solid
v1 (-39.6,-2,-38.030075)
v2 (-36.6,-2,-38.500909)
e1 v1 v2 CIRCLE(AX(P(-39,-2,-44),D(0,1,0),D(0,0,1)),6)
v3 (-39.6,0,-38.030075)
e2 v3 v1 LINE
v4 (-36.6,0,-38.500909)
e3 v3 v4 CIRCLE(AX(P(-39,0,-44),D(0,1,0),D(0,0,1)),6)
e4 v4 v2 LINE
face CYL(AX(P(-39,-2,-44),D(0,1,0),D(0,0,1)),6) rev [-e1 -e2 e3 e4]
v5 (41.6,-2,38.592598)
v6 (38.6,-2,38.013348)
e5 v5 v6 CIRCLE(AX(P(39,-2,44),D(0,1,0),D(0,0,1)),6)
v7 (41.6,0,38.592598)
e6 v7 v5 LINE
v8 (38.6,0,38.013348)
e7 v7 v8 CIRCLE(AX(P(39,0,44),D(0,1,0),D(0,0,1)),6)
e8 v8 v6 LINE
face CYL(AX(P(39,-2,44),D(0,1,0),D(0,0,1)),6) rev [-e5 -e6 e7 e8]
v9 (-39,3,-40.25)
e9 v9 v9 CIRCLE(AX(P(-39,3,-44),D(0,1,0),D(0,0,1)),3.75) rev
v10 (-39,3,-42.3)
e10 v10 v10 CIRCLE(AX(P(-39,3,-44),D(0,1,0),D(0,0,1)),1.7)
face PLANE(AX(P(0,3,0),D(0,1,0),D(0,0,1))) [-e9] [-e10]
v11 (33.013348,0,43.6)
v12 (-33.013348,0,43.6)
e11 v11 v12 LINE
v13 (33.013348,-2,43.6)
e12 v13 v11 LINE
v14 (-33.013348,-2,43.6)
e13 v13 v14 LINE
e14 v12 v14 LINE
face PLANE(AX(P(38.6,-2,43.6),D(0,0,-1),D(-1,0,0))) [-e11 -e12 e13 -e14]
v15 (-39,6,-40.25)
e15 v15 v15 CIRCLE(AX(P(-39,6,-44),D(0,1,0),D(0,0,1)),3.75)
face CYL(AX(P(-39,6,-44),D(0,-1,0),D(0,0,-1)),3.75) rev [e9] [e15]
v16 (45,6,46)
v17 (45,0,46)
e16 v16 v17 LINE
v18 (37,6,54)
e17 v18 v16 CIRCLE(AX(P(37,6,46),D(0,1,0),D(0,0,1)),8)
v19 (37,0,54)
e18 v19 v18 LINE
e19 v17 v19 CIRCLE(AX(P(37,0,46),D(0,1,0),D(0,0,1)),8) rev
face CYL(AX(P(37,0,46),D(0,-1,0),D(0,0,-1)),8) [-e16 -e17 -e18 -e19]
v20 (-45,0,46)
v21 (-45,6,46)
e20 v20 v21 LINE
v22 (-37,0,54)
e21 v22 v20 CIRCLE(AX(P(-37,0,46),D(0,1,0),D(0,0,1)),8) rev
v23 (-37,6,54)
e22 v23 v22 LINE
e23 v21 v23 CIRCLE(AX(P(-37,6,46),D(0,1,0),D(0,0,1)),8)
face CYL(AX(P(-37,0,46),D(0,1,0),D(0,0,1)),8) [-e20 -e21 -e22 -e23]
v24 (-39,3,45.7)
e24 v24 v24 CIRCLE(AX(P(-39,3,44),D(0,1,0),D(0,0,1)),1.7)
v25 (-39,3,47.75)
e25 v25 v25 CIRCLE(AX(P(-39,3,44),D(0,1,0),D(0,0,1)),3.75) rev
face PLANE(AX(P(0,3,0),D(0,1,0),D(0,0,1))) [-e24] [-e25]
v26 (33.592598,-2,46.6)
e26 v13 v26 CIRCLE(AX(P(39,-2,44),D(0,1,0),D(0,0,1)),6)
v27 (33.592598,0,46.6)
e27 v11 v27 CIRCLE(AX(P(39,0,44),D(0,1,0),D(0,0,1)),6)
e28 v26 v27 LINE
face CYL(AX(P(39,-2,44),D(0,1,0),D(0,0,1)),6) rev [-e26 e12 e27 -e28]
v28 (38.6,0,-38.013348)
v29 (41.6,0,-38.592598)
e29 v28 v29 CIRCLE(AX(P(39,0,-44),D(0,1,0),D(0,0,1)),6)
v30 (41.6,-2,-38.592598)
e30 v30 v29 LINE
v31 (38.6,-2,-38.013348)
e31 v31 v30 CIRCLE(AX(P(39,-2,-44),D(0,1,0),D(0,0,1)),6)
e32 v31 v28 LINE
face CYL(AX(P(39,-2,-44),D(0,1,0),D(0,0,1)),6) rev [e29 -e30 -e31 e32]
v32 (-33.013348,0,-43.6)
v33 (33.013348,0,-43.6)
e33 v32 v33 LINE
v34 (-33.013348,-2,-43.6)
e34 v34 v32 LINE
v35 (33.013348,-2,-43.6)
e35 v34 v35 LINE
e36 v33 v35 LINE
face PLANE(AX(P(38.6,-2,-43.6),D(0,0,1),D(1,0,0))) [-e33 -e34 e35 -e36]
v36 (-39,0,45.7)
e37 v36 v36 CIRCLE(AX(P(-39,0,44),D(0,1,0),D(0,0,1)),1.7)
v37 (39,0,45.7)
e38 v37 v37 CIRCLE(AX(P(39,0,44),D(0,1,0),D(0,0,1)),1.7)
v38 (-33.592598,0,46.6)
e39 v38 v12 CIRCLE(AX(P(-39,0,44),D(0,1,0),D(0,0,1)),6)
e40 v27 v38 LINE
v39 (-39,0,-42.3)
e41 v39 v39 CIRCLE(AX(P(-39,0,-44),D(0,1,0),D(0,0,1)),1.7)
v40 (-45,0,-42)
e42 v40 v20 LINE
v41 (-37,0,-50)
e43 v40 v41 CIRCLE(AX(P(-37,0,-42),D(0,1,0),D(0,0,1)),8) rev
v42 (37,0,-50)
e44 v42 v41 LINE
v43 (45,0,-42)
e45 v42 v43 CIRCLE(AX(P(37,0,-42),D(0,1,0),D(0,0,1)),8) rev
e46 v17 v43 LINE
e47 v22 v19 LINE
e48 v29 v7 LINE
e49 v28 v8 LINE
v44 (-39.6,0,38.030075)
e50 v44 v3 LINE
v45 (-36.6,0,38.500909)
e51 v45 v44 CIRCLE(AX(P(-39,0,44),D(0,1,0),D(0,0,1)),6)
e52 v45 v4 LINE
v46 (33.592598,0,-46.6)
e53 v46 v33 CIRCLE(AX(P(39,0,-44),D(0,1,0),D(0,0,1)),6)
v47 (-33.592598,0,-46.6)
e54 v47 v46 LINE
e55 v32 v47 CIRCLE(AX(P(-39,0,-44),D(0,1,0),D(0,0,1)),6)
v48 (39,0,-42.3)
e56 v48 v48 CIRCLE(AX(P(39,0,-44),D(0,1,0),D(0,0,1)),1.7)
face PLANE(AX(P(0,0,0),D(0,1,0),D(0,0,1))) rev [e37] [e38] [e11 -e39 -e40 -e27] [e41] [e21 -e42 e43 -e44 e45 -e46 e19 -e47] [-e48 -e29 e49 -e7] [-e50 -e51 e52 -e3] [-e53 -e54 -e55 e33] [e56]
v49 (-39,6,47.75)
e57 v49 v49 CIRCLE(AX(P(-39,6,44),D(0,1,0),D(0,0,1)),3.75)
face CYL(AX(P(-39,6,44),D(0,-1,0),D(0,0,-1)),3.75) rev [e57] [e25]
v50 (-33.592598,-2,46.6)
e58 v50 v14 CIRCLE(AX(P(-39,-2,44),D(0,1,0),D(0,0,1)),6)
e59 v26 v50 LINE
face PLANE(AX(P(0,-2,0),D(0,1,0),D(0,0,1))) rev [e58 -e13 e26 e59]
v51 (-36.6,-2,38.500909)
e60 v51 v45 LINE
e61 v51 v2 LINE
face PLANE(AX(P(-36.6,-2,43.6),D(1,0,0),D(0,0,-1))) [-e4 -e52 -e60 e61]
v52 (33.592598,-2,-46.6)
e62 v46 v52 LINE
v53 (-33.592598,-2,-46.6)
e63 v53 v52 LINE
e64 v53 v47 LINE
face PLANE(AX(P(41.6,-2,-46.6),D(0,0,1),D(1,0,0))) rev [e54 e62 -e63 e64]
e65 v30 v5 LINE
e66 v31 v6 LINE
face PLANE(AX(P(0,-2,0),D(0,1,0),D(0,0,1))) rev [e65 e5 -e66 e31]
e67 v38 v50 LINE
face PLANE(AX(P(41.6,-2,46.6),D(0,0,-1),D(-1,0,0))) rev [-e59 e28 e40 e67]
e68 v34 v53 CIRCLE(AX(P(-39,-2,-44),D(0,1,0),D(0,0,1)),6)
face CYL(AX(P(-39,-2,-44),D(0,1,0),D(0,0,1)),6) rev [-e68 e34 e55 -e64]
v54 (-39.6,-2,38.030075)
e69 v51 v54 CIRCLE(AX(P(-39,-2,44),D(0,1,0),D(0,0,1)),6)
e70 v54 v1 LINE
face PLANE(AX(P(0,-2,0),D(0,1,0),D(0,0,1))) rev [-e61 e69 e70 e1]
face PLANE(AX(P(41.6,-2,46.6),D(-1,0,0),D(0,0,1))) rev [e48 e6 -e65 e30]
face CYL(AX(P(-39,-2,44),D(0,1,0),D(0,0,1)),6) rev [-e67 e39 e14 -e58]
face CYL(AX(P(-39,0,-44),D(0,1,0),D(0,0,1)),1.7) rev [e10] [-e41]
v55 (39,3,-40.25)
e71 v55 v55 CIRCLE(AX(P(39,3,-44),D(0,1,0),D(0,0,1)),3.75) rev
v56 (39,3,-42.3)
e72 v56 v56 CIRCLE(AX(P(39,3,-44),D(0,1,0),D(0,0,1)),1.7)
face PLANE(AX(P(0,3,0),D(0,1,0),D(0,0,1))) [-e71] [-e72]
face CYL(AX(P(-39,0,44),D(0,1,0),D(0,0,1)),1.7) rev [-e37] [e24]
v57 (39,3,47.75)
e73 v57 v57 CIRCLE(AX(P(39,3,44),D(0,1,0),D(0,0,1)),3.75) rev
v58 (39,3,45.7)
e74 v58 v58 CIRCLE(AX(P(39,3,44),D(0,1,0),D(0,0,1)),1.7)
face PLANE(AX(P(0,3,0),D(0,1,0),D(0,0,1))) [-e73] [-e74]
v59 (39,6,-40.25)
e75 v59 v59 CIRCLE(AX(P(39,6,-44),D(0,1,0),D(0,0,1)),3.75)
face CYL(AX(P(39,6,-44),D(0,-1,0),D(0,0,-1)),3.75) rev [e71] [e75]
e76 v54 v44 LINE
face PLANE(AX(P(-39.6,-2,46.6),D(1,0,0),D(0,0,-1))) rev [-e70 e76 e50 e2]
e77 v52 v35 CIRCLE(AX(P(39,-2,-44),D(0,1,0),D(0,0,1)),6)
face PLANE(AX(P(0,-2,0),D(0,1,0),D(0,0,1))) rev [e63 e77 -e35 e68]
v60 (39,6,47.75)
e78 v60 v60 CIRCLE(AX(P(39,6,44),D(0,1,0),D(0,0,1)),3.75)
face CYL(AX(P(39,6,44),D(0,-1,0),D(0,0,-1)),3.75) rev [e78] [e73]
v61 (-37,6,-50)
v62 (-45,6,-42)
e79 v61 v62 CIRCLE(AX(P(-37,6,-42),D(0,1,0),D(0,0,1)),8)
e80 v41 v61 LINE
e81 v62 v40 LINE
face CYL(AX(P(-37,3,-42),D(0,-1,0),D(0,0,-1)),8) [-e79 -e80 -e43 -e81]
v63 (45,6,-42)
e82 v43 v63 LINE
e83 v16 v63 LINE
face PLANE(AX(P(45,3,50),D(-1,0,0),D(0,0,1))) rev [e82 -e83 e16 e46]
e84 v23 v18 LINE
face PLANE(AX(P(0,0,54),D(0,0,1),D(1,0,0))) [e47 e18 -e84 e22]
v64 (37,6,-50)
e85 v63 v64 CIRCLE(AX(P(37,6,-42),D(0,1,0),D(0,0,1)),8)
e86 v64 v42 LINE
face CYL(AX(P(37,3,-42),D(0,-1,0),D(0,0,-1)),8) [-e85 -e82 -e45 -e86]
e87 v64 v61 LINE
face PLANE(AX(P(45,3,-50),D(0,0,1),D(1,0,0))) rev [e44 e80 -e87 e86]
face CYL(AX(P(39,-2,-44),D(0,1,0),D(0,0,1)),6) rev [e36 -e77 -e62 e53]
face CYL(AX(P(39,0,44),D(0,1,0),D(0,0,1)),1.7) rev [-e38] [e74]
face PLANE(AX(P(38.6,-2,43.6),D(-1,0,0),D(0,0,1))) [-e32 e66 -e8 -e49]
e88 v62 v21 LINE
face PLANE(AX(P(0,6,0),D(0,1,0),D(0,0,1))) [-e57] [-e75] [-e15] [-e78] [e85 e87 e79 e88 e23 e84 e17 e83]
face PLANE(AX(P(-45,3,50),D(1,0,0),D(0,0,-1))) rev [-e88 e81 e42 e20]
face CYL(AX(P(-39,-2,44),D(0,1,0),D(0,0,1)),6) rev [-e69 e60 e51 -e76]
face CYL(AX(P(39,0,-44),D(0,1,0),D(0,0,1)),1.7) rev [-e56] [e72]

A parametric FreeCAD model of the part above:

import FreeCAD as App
import Part
import Sketcher
from FreeCAD import Vector


def edges_at(feature, points):
    """Names of the edges that pass closest to the given points."""
    edges = feature.Shape.Edges
    near = lambda p: min(range(len(edges)), key=lambda i: edges[i].distToShape(Part.Vertex(*p))[0])
    return sorted({f"Edge{near(p) + 1}" for p in points})

doc = App.newDocument("Part")
body = doc.addObject("PartDesign::Body", "Body")

sketch1 = doc.addObject("Sketcher::SketchObject", "Sketch")
body.addObject(sketch1)
sketch1.AttachmentSupport = (doc.XZ_Plane, [""])
sketch1.MapMode = "FlatFace"
sketch1.addGeometry(Part.LineSegment(Vector(-45, -50, 0), Vector(-45, 50, 0)), False)
sketch1.addGeometry(Part.LineSegment(Vector(-45, 50, 0), Vector(45, 50, 0)), False)
sketch1.addGeometry(Part.LineSegment(Vector(45, 50, 0), Vector(45, -50, 0)), False)
sketch1.addGeometry(Part.LineSegment(Vector(45, -50, 0), Vector(-45, -50, 0)), False)
sketch1.addConstraint(Sketcher.Constraint("Coincident", 0, 2, 1, 1))
sketch1.addConstraint(Sketcher.Constraint("Coincident", 1, 2, 2, 1))
sketch1.addConstraint(Sketcher.Constraint("Coincident", 2, 2, 3, 1))
sketch1.addConstraint(Sketcher.Constraint("Coincident", 3, 2, 0, 1))
sketch1.addConstraint(Sketcher.Constraint("Vertical", 0))
sketch1.addConstraint(Sketcher.Constraint("Horizontal", 1))
sketch1.addConstraint(Sketcher.Constraint("Vertical", 2))
sketch1.addConstraint(Sketcher.Constraint("Horizontal", 3))
sketch1.addConstraint(Sketcher.Constraint("Symmetric", 0, 2, 2, 2, -1, 1))
sketch1.addConstraint(Sketcher.Constraint("DistanceX", 1, 1, 1, 2, 90.0))
sketch1.addConstraint(Sketcher.Constraint("DistanceY", 0, 1, 0, 2, 100.0))
pad1 = doc.addObject("PartDesign::Pad", "Pad")
body.addObject(pad1)
pad1.Profile = sketch1
pad1.Length = 3
pad1.Reversed = True

sketch2 = doc.addObject("Sketcher::SketchObject", "Sketch001")
body.addObject(sketch2)
sketch2.AttachmentSupport = (doc.XZ_Plane, [""])
sketch2.MapMode = "FlatFace"
sketch2.AttachmentOffset = App.Placement(Vector(0, 0, -3), App.Rotation())
sketch2.addGeometry(Part.Circle(Vector(-39, -44, 0), Vector(0, 0, 1), 1.7), False)
sketch2.addGeometry(Part.Circle(Vector(39, -44, 0), Vector(0, 0, 1), 1.7), False)
sketch2.addGeometry(Part.Circle(Vector(39, 44, 0), Vector(0, 0, 1), 1.7), False)
sketch2.addGeometry(Part.Circle(Vector(-39, 44, 0), Vector(0, 0, 1), 1.7), False)
sketch2.addConstraint(Sketcher.Constraint("Equal", 0, 1))
sketch2.addConstraint(Sketcher.Constraint("Equal", 1, 2))
sketch2.addConstraint(Sketcher.Constraint("Equal", 2, 3))
sketch2.addConstraint(Sketcher.Constraint("Symmetric", 0, 3, 2, 3, -1, 1))
sketch2.addConstraint(Sketcher.Constraint("Symmetric", 1, 3, 3, 3, -1, 1))
sketch2.addConstraint(Sketcher.Constraint("Symmetric", 0, 3, 1, 3, -2))
sketch2.addConstraint(Sketcher.Constraint("Diameter", 0, 3.4))
sketch2.addConstraint(Sketcher.Constraint("DistanceX", 0, 3, -1, 1, 39.0))
sketch2.addConstraint(Sketcher.Constraint("DistanceY", 0, 3, -1, 1, 44.0))
pocket1 = doc.addObject("PartDesign::Pocket", "Pocket")
body.addObject(pocket1)
pocket1.Profile = sketch2
pocket1.Type = "ThroughAll"
pocket1.Reversed = True

sketch3 = doc.addObject("Sketcher::SketchObject", "Sketch002")
body.addObject(sketch3)
sketch3.AttachmentSupport = (doc.XZ_Plane, [""])
sketch3.MapMode = "FlatFace"
sketch3.addGeometry(Part.LineSegment(Vector(-39.6, 46.6, 0), Vector(-39.6, -46.6, 0)), False)
sketch3.addGeometry(Part.LineSegment(Vector(-39.6, -46.6, 0), Vector(41.6, -46.6, 0)), False)
sketch3.addGeometry(Part.LineSegment(Vector(41.6, -46.6, 0), Vector(41.6, 46.6, 0)), False)
sketch3.addGeometry(Part.LineSegment(Vector(41.6, 46.6, 0), Vector(-39.6, 46.6, 0)), False)
sketch3.addGeometry(Part.LineSegment(Vector(38.6, -43.6, 0), Vector(-36.6, -43.6, 0)), False)
sketch3.addGeometry(Part.LineSegment(Vector(-36.6, -43.6, 0), Vector(-36.6, 43.6, 0)), False)
sketch3.addGeometry(Part.LineSegment(Vector(-36.6, 43.6, 0), Vector(38.6, 43.6, 0)), False)
sketch3.addGeometry(Part.LineSegment(Vector(38.6, 43.6, 0), Vector(38.6, -43.6, 0)), False)
sketch3.addConstraint(Sketcher.Constraint("Coincident", 0, 2, 1, 1))
sketch3.addConstraint(Sketcher.Constraint("Coincident", 1, 2, 2, 1))
sketch3.addConstraint(Sketcher.Constraint("Coincident", 2, 2, 3, 1))
sketch3.addConstraint(Sketcher.Constraint("Coincident", 3, 2, 0, 1))
sketch3.addConstraint(Sketcher.Constraint("Coincident", 4, 2, 5, 1))
sketch3.addConstraint(Sketcher.Constraint("Coincident", 5, 2, 6, 1))
sketch3.addConstraint(Sketcher.Constraint("Coincident", 6, 2, 7, 1))
sketch3.addConstraint(Sketcher.Constraint("Coincident", 7, 2, 4, 1))
sketch3.addConstraint(Sketcher.Constraint("Vertical", 0))
sketch3.addConstraint(Sketcher.Constraint("Horizontal", 1))
sketch3.addConstraint(Sketcher.Constraint("Vertical", 2))
sketch3.addConstraint(Sketcher.Constraint("Horizontal", 3))
sketch3.addConstraint(Sketcher.Constraint("Horizontal", 4))
sketch3.addConstraint(Sketcher.Constraint("Vertical", 5))
sketch3.addConstraint(Sketcher.Constraint("Horizontal", 6))
sketch3.addConstraint(Sketcher.Constraint("Vertical", 7))
sketch3.addConstraint(Sketcher.Constraint("DistanceX", 1, 1, 1, 2, 81.2))
sketch3.addConstraint(Sketcher.Constraint("DistanceX", 4, 2, 4, 1, 75.2))
sketch3.addConstraint(Sketcher.Constraint("DistanceY", 0, 2, 0, 1, 93.2))
sketch3.addConstraint(Sketcher.Constraint("DistanceY", 5, 1, 5, 2, 87.2))
sketch3.addConstraint(Sketcher.Constraint("DistanceX", 0, 2, 4, 2, 3.0))
sketch3.addConstraint(Sketcher.Constraint("DistanceY", 0, 2, 4, 2, 3.0))
sketch3.addConstraint(Sketcher.Constraint("DistanceX", 0, 2, -1, 1, 39.6))
sketch3.addConstraint(Sketcher.Constraint("DistanceY", 0, 2, -1, 1, 46.6))
pad2 = doc.addObject("PartDesign::Pad", "Pad001")
body.addObject(pad2)
pad2.Profile = sketch3
pad2.Length = 2

sketch4 = doc.addObject("Sketcher::SketchObject", "Sketch003")
body.addObject(sketch4)
sketch4.AttachmentSupport = (doc.XZ_Plane, [""])
sketch4.MapMode = "FlatFace"
sketch4.addGeometry(Part.Circle(Vector(-39, -44, 0), Vector(0, 0, 1), 6), False)
sketch4.addGeometry(Part.Circle(Vector(-39, 44, 0), Vector(0, 0, 1), 6), False)
sketch4.addGeometry(Part.Circle(Vector(39, 44, 0), Vector(0, 0, 1), 6), False)
sketch4.addGeometry(Part.Circle(Vector(39, -44, 0), Vector(0, 0, 1), 6), False)
sketch4.addConstraint(Sketcher.Constraint("Equal", 0, 1))
sketch4.addConstraint(Sketcher.Constraint("Equal", 1, 2))
sketch4.addConstraint(Sketcher.Constraint("Equal", 2, 3))
sketch4.addConstraint(Sketcher.Constraint("Symmetric", 0, 3, 2, 3, -1, 1))
sketch4.addConstraint(Sketcher.Constraint("Symmetric", 1, 3, 3, 3, -1, 1))
sketch4.addConstraint(Sketcher.Constraint("Symmetric", 1, 3, 2, 3, -2))
sketch4.addConstraint(Sketcher.Constraint("Diameter", 0, 12.0))
sketch4.addConstraint(Sketcher.Constraint("DistanceX", 0, 3, -1, 1, 39.0))
sketch4.addConstraint(Sketcher.Constraint("DistanceY", 0, 3, -1, 1, 44.0))
pocket2 = doc.addObject("PartDesign::Pocket", "Pocket001")
body.addObject(pocket2)
pocket2.Profile = sketch4
pocket2.Type = "ThroughAll"
pocket2.Reversed = True

sketch5 = doc.addObject("Sketcher::SketchObject", "Sketch004")
body.addObject(sketch5)
sketch5.AttachmentSupport = (doc.XY_Plane, [""])
sketch5.MapMode = "FlatFace"
sketch5.AttachmentOffset = App.Placement(Vector(0, 0, 50), App.Rotation())
sketch5.addGeometry(Part.LineSegment(Vector(-45, 3, 0), Vector(-45, 0, 0)), False)
sketch5.addGeometry(Part.LineSegment(Vector(-45, 0, 0), Vector(45, 0, 0)), False)
sketch5.addGeometry(Part.LineSegment(Vector(45, 0, 0), Vector(45, 3, 0)), False)
sketch5.addGeometry(Part.LineSegment(Vector(45, 3, 0), Vector(-45, 3, 0)), False)
sketch5.addConstraint(Sketcher.Constraint("Coincident", 0, 2, 1, 1))
sketch5.addConstraint(Sketcher.Constraint("Coincident", 1, 2, 2, 1))
sketch5.addConstraint(Sketcher.Constraint("Coincident", 2, 2, 3, 1))
sketch5.addConstraint(Sketcher.Constraint("Coincident", 3, 2, 0, 1))
sketch5.addConstraint(Sketcher.Constraint("Vertical", 0))
sketch5.addConstraint(Sketcher.Constraint("Horizontal", 1))
sketch5.addConstraint(Sketcher.Constraint("Vertical", 2))
sketch5.addConstraint(Sketcher.Constraint("Horizontal", 3))
sketch5.addConstraint(Sketcher.Constraint("Symmetric", 0, 2, 1, 2, -1, 1))
sketch5.addConstraint(Sketcher.Constraint("DistanceX", 1, 1, 1, 2, 90.0))
sketch5.addConstraint(Sketcher.Constraint("DistanceY", 0, 2, 0, 1, 3.0))
pad3 = doc.addObject("PartDesign::Pad", "Pad002")
body.addObject(pad3)
pad3.Profile = sketch5
pad3.Length = 4

sketch6 = doc.addObject("Sketcher::SketchObject", "Sketch005")
body.addObject(sketch6)
sketch6.AttachmentSupport = (doc.XZ_Plane, [""])
sketch6.MapMode = "FlatFace"
sketch6.AttachmentOffset = App.Placement(Vector(0, 0, -3), App.Rotation())
sketch6.addGeometry(Part.LineSegment(Vector(-45, 54, 0), Vector(45, 54, 0)), False)
sketch6.addGeometry(Part.LineSegment(Vector(45, 54, 0), Vector(45, -50, 0)), False)
sketch6.addGeometry(Part.LineSegment(Vector(45, -50, 0), Vector(-45, -50, 0)), False)
sketch6.addGeometry(Part.LineSegment(Vector(-45, -50, 0), Vector(-45, 54, 0)), False)
sketch6.addGeometry(Part.Circle(Vector(-39, 44, 0), Vector(0, 0, 1), 3.75), False)
sketch6.addGeometry(Part.Circle(Vector(39, 44, 0), Vector(0, 0, 1), 3.75), False)
sketch6.addGeometry(Part.Circle(Vector(-39, -44, 0), Vector(0, 0, 1), 3.75), False)
sketch6.addGeometry(Part.Circle(Vector(39, -44, 0), Vector(0, 0, 1), 3.75), False)
sketch6.addConstraint(Sketcher.Constraint("Coincident", 0, 2, 1, 1))
sketch6.addConstraint(Sketcher.Constraint("Coincident", 1, 2, 2, 1))
sketch6.addConstraint(Sketcher.Constraint("Coincident", 2, 2, 3, 1))
sketch6.addConstraint(Sketcher.Constraint("Coincident", 3, 2, 0, 1))
sketch6.addConstraint(Sketcher.Constraint("Horizontal", 0))
sketch6.addConstraint(Sketcher.Constraint("Vertical", 1))
sketch6.addConstraint(Sketcher.Constraint("Horizontal", 2))
sketch6.addConstraint(Sketcher.Constraint("Vertical", 3))
sketch6.addConstraint(Sketcher.Constraint("Equal", 4, 5))
sketch6.addConstraint(Sketcher.Constraint("Equal", 5, 6))
sketch6.addConstraint(Sketcher.Constraint("Equal", 6, 7))
sketch6.addConstraint(Sketcher.Constraint("Symmetric", 5, 3, 6, 3, -1, 1))
sketch6.addConstraint(Sketcher.Constraint("Symmetric", 4, 3, 7, 3, -1, 1))
sketch6.addConstraint(Sketcher.Constraint("Symmetric", 4, 3, 5, 3, -2))
sketch6.addConstraint(Sketcher.Constraint("Diameter", 4, 7.5))
sketch6.addConstraint(Sketcher.Constraint("DistanceX", 0, 1, 0, 2, 90.0))
sketch6.addConstraint(Sketcher.Constraint("DistanceY", 1, 2, 1, 1, 104.0))
sketch6.addConstraint(Sketcher.Constraint("DistanceX", 4, 3, -1, 1, 39.0))
sketch6.addConstraint(Sketcher.Constraint("DistanceY", -1, 1, 4, 3, 44.0))
sketch6.addConstraint(Sketcher.Constraint("DistanceX", -1, 1, 0, 2, 45.0))
sketch6.addConstraint(Sketcher.Constraint("DistanceY", -1, 1, 0, 2, 54.0))
pad4 = doc.addObject("PartDesign::Pad", "Pad003")
body.addObject(pad4)
pad4.Profile = sketch6
pad4.Length = 3
pad4.Reversed = True
doc.recompute()

fillet = doc.addObject("PartDesign::Fillet", "Fillet")
body.addObject(fillet)
fillet.Base = (pad4, edges_at(pad4, [
    (-45, 3, 54),
    (45, 3, 54),
    (-45, 3, -50),
    (45, 3, -50),
]))
fillet.Radius = 8

doc.recompute()
